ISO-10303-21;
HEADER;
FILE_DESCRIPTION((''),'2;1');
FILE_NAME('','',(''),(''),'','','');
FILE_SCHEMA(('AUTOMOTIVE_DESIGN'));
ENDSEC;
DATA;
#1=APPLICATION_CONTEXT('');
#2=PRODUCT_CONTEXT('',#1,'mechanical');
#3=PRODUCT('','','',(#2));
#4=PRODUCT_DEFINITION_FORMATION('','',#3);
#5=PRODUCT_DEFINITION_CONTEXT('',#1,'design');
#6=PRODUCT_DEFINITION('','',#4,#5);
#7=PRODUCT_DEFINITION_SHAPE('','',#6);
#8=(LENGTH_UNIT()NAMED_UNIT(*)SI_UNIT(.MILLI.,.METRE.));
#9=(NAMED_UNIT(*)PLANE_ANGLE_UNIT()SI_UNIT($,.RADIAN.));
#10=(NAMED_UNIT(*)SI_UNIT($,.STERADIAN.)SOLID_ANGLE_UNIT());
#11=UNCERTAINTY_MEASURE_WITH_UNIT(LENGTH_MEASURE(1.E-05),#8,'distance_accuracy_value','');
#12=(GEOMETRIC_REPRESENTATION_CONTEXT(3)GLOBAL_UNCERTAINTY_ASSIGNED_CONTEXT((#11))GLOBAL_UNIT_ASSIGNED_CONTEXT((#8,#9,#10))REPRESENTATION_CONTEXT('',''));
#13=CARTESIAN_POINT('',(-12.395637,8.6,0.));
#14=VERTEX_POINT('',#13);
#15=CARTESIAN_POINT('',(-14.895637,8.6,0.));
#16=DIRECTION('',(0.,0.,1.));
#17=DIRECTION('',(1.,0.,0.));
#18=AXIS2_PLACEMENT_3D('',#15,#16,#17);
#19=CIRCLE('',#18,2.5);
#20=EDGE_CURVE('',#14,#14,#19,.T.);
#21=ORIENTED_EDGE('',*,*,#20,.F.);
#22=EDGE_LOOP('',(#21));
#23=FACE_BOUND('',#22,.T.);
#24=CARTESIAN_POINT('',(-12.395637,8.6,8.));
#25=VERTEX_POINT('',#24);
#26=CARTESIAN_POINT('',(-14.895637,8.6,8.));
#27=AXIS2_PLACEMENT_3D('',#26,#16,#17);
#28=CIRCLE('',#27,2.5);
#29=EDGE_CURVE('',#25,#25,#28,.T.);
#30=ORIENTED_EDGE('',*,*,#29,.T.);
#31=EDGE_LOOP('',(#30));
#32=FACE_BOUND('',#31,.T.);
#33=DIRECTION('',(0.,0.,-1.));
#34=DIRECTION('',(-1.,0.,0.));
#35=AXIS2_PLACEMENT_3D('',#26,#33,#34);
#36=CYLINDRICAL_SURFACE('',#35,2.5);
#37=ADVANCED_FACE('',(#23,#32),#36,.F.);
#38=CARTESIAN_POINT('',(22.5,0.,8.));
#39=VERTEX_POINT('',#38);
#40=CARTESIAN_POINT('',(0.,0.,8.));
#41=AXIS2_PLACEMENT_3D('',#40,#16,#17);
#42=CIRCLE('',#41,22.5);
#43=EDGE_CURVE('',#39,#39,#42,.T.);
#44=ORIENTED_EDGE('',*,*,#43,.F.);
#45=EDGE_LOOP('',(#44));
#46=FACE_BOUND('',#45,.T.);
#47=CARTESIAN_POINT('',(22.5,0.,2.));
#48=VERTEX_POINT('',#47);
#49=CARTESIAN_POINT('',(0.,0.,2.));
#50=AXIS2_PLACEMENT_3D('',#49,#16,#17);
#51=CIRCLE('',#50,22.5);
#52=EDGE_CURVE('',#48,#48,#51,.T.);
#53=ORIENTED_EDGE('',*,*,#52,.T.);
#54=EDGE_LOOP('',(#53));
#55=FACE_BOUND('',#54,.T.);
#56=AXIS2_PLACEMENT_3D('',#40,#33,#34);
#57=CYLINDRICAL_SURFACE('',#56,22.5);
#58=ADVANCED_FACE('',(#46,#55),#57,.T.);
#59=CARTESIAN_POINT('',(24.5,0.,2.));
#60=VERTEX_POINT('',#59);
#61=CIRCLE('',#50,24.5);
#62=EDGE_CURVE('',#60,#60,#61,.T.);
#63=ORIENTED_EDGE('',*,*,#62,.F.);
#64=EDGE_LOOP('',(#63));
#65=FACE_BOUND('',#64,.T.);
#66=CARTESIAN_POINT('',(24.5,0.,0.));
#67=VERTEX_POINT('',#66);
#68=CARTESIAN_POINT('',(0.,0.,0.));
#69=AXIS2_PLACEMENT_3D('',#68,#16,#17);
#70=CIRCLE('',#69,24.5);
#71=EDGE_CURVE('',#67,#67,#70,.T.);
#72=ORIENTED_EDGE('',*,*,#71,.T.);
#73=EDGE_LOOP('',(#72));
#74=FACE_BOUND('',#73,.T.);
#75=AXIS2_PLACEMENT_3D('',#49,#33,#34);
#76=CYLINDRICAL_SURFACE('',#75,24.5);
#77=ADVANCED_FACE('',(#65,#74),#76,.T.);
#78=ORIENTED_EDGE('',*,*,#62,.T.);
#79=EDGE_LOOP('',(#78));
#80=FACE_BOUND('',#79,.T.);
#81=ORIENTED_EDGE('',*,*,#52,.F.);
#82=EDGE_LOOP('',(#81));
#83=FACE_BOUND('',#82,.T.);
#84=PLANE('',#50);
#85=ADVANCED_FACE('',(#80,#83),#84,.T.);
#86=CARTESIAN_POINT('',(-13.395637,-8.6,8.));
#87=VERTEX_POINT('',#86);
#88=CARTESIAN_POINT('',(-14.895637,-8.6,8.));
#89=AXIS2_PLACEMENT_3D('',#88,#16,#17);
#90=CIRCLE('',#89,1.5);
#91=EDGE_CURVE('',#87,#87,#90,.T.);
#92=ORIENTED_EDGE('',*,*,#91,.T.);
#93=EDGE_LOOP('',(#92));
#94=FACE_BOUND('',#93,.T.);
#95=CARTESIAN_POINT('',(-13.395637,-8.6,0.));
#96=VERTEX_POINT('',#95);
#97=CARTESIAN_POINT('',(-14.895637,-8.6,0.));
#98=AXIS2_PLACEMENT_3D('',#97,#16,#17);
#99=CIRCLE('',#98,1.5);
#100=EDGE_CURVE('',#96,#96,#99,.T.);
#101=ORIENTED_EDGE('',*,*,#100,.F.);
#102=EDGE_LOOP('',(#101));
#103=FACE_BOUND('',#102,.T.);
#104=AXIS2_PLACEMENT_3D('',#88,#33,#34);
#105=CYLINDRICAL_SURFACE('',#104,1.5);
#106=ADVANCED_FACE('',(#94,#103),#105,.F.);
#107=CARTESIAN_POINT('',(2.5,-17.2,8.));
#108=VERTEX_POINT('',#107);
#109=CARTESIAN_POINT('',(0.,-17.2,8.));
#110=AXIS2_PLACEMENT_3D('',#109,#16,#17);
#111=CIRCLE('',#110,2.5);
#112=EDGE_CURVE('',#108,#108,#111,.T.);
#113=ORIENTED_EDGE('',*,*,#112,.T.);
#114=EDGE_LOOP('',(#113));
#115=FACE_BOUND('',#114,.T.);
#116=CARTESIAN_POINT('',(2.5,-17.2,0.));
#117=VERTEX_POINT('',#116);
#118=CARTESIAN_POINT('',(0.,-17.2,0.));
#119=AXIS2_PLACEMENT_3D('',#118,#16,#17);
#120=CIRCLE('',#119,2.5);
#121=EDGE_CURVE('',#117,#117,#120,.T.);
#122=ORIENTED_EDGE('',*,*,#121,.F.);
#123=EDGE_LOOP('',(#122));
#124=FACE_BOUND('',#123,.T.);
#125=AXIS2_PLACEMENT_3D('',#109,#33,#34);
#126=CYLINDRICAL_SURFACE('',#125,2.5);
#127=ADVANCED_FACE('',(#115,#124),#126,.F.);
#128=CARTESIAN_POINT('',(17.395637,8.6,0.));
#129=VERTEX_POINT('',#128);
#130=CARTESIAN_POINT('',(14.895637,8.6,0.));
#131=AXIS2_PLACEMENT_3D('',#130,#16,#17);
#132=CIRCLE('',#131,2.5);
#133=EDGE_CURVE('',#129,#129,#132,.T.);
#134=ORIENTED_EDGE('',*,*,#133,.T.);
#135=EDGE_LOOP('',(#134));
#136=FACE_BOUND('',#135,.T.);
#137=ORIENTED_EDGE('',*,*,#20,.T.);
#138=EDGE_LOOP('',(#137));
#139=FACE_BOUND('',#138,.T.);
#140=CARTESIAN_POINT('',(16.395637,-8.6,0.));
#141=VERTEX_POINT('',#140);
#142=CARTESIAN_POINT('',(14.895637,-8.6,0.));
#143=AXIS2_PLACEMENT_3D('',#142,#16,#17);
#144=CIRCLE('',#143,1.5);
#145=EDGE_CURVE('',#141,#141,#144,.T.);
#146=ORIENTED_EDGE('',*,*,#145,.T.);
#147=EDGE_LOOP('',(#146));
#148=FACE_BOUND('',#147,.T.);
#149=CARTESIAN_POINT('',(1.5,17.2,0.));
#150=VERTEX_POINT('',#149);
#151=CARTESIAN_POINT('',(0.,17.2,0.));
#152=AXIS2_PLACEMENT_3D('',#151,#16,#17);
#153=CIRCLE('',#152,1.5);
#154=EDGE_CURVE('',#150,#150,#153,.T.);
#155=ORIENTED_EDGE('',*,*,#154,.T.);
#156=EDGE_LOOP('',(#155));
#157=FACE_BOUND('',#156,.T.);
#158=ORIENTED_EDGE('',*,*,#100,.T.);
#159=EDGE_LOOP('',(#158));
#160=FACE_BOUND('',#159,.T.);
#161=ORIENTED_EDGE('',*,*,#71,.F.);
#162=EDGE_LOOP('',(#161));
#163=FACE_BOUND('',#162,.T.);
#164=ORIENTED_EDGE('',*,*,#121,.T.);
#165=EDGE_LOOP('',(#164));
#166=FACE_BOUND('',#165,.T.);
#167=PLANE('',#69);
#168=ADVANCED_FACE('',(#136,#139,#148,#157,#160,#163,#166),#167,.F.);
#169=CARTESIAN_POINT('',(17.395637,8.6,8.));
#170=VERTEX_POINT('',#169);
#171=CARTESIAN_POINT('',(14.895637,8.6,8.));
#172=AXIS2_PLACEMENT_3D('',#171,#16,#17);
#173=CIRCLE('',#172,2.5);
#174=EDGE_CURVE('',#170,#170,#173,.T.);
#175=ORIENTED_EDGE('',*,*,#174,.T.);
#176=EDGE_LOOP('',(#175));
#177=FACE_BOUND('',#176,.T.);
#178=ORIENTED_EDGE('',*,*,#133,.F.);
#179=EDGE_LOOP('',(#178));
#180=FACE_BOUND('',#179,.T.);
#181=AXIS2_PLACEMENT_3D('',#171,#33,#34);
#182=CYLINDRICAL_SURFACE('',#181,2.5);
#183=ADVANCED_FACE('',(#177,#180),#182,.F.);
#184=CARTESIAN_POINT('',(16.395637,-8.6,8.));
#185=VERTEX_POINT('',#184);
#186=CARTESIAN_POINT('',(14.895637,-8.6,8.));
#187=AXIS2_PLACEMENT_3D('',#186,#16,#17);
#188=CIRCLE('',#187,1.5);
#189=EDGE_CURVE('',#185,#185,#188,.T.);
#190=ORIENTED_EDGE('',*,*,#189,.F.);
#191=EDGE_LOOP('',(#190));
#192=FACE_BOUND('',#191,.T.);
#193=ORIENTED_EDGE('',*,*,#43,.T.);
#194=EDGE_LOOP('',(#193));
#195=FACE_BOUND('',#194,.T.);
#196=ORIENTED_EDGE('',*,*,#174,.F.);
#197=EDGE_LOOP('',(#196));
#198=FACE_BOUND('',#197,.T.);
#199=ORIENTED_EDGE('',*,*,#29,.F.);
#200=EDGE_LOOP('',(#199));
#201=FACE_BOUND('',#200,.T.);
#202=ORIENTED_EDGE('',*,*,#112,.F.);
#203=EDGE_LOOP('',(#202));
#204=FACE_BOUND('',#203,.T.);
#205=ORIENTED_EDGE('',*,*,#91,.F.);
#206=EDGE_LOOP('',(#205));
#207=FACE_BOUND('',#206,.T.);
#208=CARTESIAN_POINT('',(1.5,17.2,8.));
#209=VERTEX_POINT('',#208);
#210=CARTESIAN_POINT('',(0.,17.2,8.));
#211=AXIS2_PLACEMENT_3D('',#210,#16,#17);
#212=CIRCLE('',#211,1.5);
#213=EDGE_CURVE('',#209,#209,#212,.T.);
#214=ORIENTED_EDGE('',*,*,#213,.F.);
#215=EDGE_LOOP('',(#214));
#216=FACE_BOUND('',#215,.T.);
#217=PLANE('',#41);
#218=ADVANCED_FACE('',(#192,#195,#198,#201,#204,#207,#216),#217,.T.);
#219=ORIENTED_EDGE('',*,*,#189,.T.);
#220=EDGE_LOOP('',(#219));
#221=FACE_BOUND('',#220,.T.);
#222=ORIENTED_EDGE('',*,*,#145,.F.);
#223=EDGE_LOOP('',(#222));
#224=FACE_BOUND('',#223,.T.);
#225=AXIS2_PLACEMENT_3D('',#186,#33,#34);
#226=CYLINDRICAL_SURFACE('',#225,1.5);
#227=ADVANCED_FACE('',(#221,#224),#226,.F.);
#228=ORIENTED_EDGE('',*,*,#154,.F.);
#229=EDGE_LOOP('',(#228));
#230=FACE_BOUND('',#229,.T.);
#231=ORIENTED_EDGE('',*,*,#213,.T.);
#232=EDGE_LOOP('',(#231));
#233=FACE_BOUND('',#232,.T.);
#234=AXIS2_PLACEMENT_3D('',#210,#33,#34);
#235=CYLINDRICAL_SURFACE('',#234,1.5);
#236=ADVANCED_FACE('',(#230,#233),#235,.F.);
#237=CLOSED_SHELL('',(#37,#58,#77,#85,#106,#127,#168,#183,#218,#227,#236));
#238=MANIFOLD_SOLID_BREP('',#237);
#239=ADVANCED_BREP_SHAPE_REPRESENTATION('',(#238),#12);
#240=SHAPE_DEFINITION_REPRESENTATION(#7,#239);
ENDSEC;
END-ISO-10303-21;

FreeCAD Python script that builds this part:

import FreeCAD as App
import Part
import Sketcher
from FreeCAD import Vector
Q = App.Units.Quantity

doc = App.newDocument("Part")
body = doc.addObject("PartDesign::Body", "Body")

sketch1 = body.newObject("Sketcher::SketchObject", "Sketch")
sketch1.AttachmentSupport = (doc.getObject("XY_Plane"), [""])
sketch1.MapMode = "FlatFace"
sketch1.addGeometry([
    Part.Circle(Vector(0, 0, 0), Vector(0, 0, 1), 24.5),
    Part.Circle(Vector(0, 0, 0), Vector(0, 0, 1), 22.5),
], False)
sketch1.addConstraint([
    Sketcher.Constraint("Coincident", 0, 3, -1, 1),
    Sketcher.Constraint("Coincident", 1, 3, -1, 1),
    Sketcher.Constraint("Diameter", 0, Q("49 mm")),
    Sketcher.Constraint("Diameter", 1, Q("45 mm")),
])
pad1 = body.newObject("PartDesign::Pad", "Pad")
pad1.Profile = sketch1
pad1.Length = 2

sketch2 = body.newObject("Sketcher::SketchObject", "Sketch001")
sketch2.AttachmentSupport = (doc.getObject("XY_Plane"), [""])
sketch2.MapMode = "FlatFace"
sketch2.addGeometry([
    Part.Circle(Vector(0, 0, 0), Vector(0, 0, 1), 22.5),
    Part.Circle(Vector(-14.895637, -8.6, 0), Vector(0, 0, 1), 1.5),
    Part.Circle(Vector(0, -17.2, 0), Vector(0, 0, 1), 2.5),
    Part.Circle(Vector(14.895637, -8.6, 0), Vector(0, 0, 1), 1.5),
    Part.Circle(Vector(-14.895637, 8.6, 0), Vector(0, 0, 1), 2.5),
    Part.Circle(Vector(14.895637, 8.6, 0), Vector(0, 0, 1), 2.5),
    Part.Circle(Vector(0, 17.2, 0), Vector(0, 0, 1), 1.5),
], False)
sketch2.addConstraint([
    Sketcher.Constraint("Coincident", 0, 3, -1, 1),
    Sketcher.Constraint("Equal", 1, 3),
    Sketcher.Constraint("Equal", 2, 4),
    Sketcher.Constraint("Equal", 4, 5),
    Sketcher.Constraint("Equal", 3, 6),
    Sketcher.Constraint("Symmetric", 3, 3, 4, 3, -1, 1),
    Sketcher.Constraint("Symmetric", 1, 3, 5, 3, -1, 1),
    Sketcher.Constraint("Symmetric", 2, 3, 6, 3, -1, 1),
    Sketcher.Constraint("Symmetric", 1, 3, 3, 3, -2),
    Sketcher.Constraint("PointOnObject", 2, 3, -2),
    Sketcher.Constraint("Diameter", 0, Q("45 mm")),
    Sketcher.Constraint("Diameter", 1, Q("3 mm")),
    Sketcher.Constraint("Diameter", 2, Q("5 mm")),
    Sketcher.Constraint("DistanceY", 1, 3, -1, 1, Q("8.6 mm")),
    Sketcher.Constraint("DistanceY", 2, 3, -1, 1, Q("17.2 mm")),
    Sketcher.Constraint("DistanceX", 1, 3, -1, 1, Q("14.895637 mm")),
])
pad2 = body.newObject("PartDesign::Pad", "Pad001")
pad2.Profile = sketch2
pad2.Length = 8

doc.recompute()
